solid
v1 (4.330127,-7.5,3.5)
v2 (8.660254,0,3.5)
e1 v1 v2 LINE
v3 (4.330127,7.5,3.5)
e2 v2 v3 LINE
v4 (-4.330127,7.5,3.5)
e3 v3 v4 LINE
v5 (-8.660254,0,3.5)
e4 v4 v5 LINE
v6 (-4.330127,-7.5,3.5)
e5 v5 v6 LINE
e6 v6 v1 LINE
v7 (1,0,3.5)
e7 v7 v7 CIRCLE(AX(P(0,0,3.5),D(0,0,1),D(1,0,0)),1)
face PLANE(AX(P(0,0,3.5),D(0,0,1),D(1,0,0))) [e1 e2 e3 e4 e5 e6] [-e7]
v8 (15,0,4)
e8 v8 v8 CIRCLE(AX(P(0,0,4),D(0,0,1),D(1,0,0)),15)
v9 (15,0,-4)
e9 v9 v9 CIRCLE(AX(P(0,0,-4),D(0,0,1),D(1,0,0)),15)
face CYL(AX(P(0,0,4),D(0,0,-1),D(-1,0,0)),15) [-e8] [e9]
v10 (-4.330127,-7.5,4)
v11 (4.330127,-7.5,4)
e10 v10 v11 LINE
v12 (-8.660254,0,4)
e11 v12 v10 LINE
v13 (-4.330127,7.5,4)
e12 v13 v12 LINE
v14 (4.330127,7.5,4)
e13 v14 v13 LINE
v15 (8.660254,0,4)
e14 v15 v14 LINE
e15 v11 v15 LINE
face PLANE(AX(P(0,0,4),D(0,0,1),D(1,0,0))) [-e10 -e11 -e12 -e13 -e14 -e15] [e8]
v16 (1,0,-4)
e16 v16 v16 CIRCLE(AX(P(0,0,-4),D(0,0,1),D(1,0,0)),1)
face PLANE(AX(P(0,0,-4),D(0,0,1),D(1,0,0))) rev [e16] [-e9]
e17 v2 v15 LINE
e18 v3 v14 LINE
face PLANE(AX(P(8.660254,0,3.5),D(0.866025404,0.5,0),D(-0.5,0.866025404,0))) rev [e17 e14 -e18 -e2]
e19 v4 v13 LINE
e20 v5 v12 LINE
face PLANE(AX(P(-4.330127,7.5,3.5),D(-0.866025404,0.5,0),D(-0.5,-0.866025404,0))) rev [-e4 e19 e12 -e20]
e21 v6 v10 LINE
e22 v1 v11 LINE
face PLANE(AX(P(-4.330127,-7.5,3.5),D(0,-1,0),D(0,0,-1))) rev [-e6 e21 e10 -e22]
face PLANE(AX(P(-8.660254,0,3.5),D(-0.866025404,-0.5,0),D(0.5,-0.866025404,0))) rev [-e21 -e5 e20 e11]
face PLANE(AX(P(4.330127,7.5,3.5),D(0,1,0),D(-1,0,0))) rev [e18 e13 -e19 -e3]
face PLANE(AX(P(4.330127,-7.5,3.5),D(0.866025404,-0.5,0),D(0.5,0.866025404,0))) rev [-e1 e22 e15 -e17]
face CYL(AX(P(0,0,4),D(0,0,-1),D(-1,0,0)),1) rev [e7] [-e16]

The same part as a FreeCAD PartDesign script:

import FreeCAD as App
import Part
import Sketcher

V = App.Vector
Q = App.Units.Quantity

doc = App.newDocument("Part")
params = doc.addObject("Spreadsheet::Sheet", "Params")
for row, (alias, value) in enumerate([
    ("sketch1_diameter", "30 mm"),
    ("sketch1_diameter2", "2 mm"),
    ("pad1_length", "8 mm"),
    ("pocket1_length", "0.5 mm"),
], start=1):
    params.set(f"A{row}", alias)
    params.set(f"B{row}", "=" + value)
    params.setAlias(f"B{row}", alias)

body = doc.addObject("PartDesign::Body", "Body")

sketch1 = body.newObject("Sketcher::SketchObject", "Sketch")
sketch1.AttachmentSupport = (doc.getObject("XY_Plane"), [""])
sketch1.MapMode = "FlatFace"
sketch1.addGeometry([
    Part.Circle(V(0, 0, 0), V(0, 0, 1), 15),
    Part.Circle(V(0, 0, 0), V(0, 0, 1), 1),
], False)
sketch1.addConstraint([
    Sketcher.Constraint("Coincident", 0, 3, -1, 1),
    Sketcher.Constraint("Coincident", 1, 3, -1, 1),
    Sketcher.Constraint("Diameter", 0, 30.0),
    Sketcher.Constraint("Diameter", 1, 2.0),
])
sketch1.setExpression("Constraints[2]", "Params.sketch1_diameter")
sketch1.setExpression("Constraints[3]", "Params.sketch1_diameter2")
pad1 = body.newObject("PartDesign::Pad", "Pad")
pad1.Profile = sketch1
pad1.setExpression("Length", "Params.pad1_length")
pad1.Midplane = True

sketch2 = body.newObject("Sketcher::SketchObject", "Sketch001")
sketch2.AttachmentSupport = (doc.getObject("XY_Plane"), [""])
sketch2.MapMode = "FlatFace"
sketch2.AttachmentOffset = App.Placement(V(0, 0, 4), App.Rotation())
sketch2.addGeometry([
    Part.LineSegment(V(-4, 8, 0), V(-9, 0, 0)),
    Part.LineSegment(V(-9, 0, 0), V(-4, -8, 0)),
    Part.LineSegment(V(-4, -8, 0), V(4, -8, 0)),
    Part.LineSegment(V(4, -8, 0), V(9, 0, 0)),
    Part.LineSegment(V(9, 0, 0), V(4, 8, 0)),
    Part.LineSegment(V(4, 8, 0), V(-4, 8, 0)),
], False)
sketch2.addConstraint([
    Sketcher.Constraint("Coincident", 0, 2, 1, 1),
    Sketcher.Constraint("Coincident", 1, 2, 2, 1),
    Sketcher.Constraint("Coincident", 2, 2, 3, 1),
    Sketcher.Constraint("Coincident", 3, 2, 4, 1),
    Sketcher.Constraint("Coincident", 4, 2, 5, 1),
    Sketcher.Constraint("Coincident", 5, 2, 0, 1),
    Sketcher.Constraint("Horizontal", 2),
    Sketcher.Constraint("Horizontal", 5),
    Sketcher.Constraint("Symmetric", 0, 2, 3, 2, -1, 1),
    Sketcher.Constraint("Symmetric", 1, 2, 4, 2, -1, 1),
    Sketcher.Constraint("PointOnObject", 0, 2, -1),
    Sketcher.Constraint("Parallel", 0, 3),
    Sketcher.Constraint("Vertical", 2, 2, 4, 2),
    Sketcher.Constraint("Angle", 0, Q("-120 deg")),
    Sketcher.Constraint("DistanceY", 2, 2, 4, 2, 15.0),
    Sketcher.Constraint("DistanceX", 2, 1, 2, 2, 8.660254),
])
pocket1 = body.newObject("PartDesign::Pocket", "Pocket")
pocket1.Profile = sketch2
pocket1.setExpression("Length", "Params.pocket1_length")

doc.recompute()
